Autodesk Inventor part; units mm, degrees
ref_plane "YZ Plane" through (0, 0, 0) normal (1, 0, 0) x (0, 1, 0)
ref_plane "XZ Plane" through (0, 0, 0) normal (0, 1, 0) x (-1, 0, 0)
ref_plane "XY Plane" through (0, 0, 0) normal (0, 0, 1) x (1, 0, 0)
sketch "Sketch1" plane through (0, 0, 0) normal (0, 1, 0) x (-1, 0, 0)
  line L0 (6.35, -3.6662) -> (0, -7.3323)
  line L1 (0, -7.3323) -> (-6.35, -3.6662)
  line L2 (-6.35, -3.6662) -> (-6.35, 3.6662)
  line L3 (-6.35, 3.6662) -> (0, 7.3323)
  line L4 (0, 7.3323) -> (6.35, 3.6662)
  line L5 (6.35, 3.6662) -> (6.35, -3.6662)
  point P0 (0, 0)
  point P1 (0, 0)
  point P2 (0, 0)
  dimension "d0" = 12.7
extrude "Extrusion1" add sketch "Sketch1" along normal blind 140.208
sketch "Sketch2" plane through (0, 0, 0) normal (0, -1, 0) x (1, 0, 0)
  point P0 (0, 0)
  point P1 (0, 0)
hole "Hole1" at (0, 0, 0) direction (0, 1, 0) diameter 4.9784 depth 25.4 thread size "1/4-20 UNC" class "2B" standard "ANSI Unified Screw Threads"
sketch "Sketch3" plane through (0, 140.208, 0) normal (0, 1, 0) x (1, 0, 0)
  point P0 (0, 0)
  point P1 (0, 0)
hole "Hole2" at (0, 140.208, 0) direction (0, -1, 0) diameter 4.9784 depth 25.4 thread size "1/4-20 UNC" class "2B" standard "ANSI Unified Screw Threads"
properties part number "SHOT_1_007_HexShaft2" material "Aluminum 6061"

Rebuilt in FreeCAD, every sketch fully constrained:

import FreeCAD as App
import Part
import Sketcher

V = App.Vector
Q = App.Units.Quantity

doc = App.newDocument("Part")
body = doc.addObject("PartDesign::Body", "Body")

sketch1 = body.newObject("Sketcher::SketchObject", "Sketch")
sketch1.AttachmentSupport = (doc.getObject("XZ_Plane"), [""])
sketch1.MapMode = "FlatFace"
sketch1.addGeometry([
    Part.LineSegment(V(0, -7, 0), V(-6, -4, 0)),
    Part.LineSegment(V(-6, -4, 0), V(-6, 4, 0)),
    Part.LineSegment(V(-6, 4, 0), V(0, 7, 0)),
    Part.LineSegment(V(0, 7, 0), V(6, 4, 0)),
    Part.LineSegment(V(6, 4, 0), V(6, -4, 0)),
    Part.LineSegment(V(6, -4, 0), V(0, -7, 0)),
], False)
sketch1.addConstraint([
    Sketcher.Constraint("Coincident", 0, 2, 1, 1),
    Sketcher.Constraint("Coincident", 1, 2, 2, 1),
    Sketcher.Constraint("Coincident", 2, 2, 3, 1),
    Sketcher.Constraint("Coincident", 3, 2, 4, 1),
    Sketcher.Constraint("Coincident", 4, 2, 5, 1),
    Sketcher.Constraint("Coincident", 5, 2, 0, 1),
    Sketcher.Constraint("Vertical", 1),
    Sketcher.Constraint("Vertical", 4),
    Sketcher.Constraint("Symmetric", 0, 2, 3, 2, -1, 1),
    Sketcher.Constraint("Symmetric", 2, 2, 5, 2, -1, 1),
    Sketcher.Constraint("PointOnObject", 2, 2, -2),
    Sketcher.Constraint("Parallel", 2, 5),
    Sketcher.Constraint("Horizontal", 1, 2, 3, 2),
    Sketcher.Constraint("DistanceX", 1, 2, 3, 2, Q("0.5 in")),
    Sketcher.Constraint("Angle", 0, Q("150.0005 deg")),
    Sketcher.Constraint("DistanceY", 0, 2, 2, 2, Q("0.433 in")),
])
pad1 = body.newObject("PartDesign::Pad", "Pad")
pad1.Profile = sketch1
pad1.Length = Q("5.52 in")
pad1.Reversed = True

sketch2 = body.newObject("Sketcher::SketchObject", "Sketch001")
sketch2.AttachmentSupport = (doc.getObject("XZ_Plane"), [""])
sketch2.MapMode = "FlatFace"
sketch2.addGeometry(Part.Circle(V(0, 0, 0), V(0, 0, 1), 2.5), False)
sketch2.addConstraint([
    Sketcher.Constraint("Coincident", 0, 3, -1, 1),
    Sketcher.Constraint("Diameter", 0, Q("0.196 in")),
])
doc.recompute()
hole = body.newObject("PartDesign::Hole", "Hole")
hole.Profile = sketch2
hole.ThreadType = "None"
hole.Diameter = Q("0.196 in")
hole.DepthType = "Dimension"
hole.Depth = Q("1 in")
hole.DrillPoint = "Flat"

sketch3 = body.newObject("Sketcher::SketchObject", "Sketch002")
sketch3.AttachmentSupport = (doc.getObject("XZ_Plane"), [""])
sketch3.MapMode = "FlatFace"
sketch3.AttachmentOffset = App.Placement(V(0, 0, -5.52 * 25.4), App.Rotation())
sketch3.addGeometry(Part.Circle(V(0, 0, 0), V(0, 0, 1), 2.5), False)
sketch3.addConstraint([
    Sketcher.Constraint("Coincident", 0, 3, -1, 1),
    Sketcher.Constraint("Diameter", 0, Q("0.196 in")),
])
doc.recompute()
hole2 = body.newObject("PartDesign::Hole", "Hole001")
hole2.Profile = sketch3
hole2.ThreadType = "None"
hole2.Diameter = Q("0.196 in")
hole2.DepthType = "Dimension"
hole2.Depth = Q("1 in")
hole2.DrillPoint = "Flat"
hole2.Reversed = True

doc.recompute()
